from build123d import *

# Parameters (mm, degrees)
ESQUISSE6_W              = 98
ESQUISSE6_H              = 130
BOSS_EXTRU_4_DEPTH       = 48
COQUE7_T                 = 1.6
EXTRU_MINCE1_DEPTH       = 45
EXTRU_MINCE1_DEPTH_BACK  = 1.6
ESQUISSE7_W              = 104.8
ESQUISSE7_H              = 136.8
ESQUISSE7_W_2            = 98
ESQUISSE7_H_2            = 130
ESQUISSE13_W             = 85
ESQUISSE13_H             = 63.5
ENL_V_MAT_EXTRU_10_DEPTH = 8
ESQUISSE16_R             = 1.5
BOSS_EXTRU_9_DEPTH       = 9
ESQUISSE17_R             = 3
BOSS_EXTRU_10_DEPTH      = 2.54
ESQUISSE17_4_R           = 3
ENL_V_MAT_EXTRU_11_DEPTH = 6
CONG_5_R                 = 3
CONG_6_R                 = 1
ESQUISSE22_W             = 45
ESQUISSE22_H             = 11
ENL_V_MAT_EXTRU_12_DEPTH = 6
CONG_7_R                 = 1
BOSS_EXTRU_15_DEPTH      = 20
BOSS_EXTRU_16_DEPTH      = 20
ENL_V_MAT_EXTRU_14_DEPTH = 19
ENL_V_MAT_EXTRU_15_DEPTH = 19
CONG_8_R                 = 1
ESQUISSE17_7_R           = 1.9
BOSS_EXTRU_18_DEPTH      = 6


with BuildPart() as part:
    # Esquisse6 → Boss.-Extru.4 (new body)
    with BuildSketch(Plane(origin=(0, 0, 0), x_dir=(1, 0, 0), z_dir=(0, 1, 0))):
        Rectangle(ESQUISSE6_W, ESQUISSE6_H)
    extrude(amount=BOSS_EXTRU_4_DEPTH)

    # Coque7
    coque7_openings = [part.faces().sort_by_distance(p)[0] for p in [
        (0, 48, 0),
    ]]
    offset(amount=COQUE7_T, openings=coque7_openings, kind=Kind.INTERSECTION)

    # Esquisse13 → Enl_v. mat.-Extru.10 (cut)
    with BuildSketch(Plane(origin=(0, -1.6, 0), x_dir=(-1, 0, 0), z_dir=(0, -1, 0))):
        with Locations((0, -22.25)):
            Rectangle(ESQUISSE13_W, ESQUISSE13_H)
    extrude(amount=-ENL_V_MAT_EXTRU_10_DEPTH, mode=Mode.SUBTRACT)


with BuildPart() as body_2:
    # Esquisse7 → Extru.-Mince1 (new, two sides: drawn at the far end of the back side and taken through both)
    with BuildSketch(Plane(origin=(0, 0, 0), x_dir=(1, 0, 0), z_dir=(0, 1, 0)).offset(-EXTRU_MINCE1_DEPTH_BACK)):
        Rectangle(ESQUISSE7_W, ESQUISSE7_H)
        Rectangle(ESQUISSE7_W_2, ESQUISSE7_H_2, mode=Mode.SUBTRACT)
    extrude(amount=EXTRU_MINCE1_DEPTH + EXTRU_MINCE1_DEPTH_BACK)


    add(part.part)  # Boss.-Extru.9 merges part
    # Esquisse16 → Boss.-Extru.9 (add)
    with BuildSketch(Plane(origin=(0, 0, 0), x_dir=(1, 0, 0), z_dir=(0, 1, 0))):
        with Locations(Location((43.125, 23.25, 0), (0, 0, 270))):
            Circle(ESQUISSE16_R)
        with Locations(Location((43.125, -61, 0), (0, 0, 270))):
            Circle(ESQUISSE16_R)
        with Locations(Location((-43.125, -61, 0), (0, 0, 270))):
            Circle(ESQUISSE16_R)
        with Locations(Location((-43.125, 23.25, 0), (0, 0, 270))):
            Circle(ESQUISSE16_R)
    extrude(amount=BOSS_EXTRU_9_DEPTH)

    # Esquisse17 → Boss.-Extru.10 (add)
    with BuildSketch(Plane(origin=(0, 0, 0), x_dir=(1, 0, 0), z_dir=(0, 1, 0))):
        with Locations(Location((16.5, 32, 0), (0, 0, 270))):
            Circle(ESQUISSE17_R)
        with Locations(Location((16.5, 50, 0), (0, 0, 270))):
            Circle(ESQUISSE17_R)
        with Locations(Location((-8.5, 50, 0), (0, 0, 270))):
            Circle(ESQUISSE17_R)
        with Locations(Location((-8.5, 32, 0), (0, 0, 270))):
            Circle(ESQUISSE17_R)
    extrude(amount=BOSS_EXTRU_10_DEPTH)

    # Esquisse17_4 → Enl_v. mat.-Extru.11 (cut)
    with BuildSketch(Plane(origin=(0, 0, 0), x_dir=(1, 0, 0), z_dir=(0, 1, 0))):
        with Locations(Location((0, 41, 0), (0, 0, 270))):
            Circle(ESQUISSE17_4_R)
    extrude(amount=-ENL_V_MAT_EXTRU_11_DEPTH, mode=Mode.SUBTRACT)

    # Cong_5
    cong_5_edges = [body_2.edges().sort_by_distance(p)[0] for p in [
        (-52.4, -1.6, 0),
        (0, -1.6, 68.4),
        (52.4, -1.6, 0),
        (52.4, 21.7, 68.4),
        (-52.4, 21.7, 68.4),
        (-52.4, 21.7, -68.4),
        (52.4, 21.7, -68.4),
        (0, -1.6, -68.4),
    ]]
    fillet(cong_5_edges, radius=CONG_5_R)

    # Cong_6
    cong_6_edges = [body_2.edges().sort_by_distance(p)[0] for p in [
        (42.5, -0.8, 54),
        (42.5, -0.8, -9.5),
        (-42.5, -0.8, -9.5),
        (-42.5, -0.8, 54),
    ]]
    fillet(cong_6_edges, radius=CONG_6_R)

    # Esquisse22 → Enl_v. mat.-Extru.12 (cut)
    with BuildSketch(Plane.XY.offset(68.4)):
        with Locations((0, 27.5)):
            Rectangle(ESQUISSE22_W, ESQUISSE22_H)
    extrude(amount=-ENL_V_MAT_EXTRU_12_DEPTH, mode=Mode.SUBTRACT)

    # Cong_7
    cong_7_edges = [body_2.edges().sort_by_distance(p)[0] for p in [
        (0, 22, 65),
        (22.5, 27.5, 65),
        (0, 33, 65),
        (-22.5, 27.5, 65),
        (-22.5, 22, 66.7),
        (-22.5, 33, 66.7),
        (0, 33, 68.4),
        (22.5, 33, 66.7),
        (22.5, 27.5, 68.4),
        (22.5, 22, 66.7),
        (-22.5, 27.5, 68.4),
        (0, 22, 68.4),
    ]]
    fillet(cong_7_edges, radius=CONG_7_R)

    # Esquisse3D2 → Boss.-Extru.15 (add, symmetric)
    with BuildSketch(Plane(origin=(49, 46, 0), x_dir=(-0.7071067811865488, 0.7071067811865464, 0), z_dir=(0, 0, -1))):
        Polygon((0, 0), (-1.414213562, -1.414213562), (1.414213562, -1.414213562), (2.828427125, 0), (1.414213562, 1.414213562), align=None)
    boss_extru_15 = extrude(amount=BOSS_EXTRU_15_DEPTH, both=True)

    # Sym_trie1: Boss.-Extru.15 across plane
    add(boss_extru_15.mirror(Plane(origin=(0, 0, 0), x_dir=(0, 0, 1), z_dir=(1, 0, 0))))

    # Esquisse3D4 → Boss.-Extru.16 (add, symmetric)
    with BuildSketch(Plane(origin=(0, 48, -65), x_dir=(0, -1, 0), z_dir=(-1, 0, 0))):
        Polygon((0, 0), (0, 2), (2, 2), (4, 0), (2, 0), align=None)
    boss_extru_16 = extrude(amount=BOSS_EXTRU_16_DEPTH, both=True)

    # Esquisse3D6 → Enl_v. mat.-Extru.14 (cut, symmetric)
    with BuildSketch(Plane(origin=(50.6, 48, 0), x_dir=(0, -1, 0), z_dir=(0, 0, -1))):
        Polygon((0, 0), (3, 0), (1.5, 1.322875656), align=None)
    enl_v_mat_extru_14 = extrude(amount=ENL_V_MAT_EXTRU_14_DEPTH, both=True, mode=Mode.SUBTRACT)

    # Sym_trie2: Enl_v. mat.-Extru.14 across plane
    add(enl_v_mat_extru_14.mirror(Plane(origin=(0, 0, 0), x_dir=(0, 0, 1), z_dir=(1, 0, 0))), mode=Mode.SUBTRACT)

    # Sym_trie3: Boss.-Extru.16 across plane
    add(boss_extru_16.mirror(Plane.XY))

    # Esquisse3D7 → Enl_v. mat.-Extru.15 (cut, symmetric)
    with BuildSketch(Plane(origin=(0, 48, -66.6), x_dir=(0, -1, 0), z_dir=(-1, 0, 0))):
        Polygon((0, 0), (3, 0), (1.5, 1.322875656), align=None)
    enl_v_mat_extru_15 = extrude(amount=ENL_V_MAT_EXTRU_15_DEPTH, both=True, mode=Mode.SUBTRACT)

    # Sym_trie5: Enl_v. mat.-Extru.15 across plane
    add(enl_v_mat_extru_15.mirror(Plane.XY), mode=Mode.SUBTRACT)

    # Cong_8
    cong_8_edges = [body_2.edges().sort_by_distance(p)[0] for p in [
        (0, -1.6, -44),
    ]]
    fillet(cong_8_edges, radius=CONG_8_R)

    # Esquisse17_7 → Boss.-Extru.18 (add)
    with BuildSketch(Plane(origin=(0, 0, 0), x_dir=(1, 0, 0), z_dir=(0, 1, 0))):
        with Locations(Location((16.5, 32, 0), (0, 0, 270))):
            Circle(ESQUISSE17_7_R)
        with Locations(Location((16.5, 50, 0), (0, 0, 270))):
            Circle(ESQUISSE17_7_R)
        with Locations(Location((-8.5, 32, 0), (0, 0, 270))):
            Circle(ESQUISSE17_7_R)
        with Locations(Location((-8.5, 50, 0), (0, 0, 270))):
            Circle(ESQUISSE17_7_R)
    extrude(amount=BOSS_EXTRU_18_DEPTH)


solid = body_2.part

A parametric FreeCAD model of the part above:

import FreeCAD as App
import Part
import Sketcher
Q = App.Units.Quantity


def edges_at(feature, points):
    """Names of the edges that pass closest to the given points."""
    edges = feature.Shape.Edges
    near = lambda p: min(range(len(edges)), key=lambda i: edges[i].distToShape(Part.Vertex(*p))[0])
    return sorted({f"Edge{near(p) + 1}" for p in points})


def faces_at(feature, points):
    """Names of the faces that lie closest to the given points."""
    faces = feature.Shape.Faces
    near = lambda p: min(range(len(faces)), key=lambda i: faces[i].distToShape(Part.Vertex(*p))[0])
    return sorted({f"Face{near(p) + 1}" for p in points})


def add_polygon(sketch, points):
    """Adds a closed chain of lines whose ends are joined by coincident constraints."""
    first, n = sketch.GeometryCount, len(points)
    for a, b in zip(points, points[1:] + points[:1]):
        sketch.addGeometry(Part.LineSegment(App.Vector(*a, 0), App.Vector(*b, 0)), False)
    for i in range(n):
        sketch.addConstraint(Sketcher.Constraint("Coincident", first + i, 2, first + (i + 1) % n, 1))

doc = App.newDocument("Part")
body = doc.addObject("PartDesign::Body", "Body")

# Sketch on XZ plane
sketch1 = body.newObject("Sketcher::SketchObject", "Sketch")
sketch1.AttachmentSupport = (doc.getObject("XZ_Plane"), [""])
sketch1.MapMode = "FlatFace"
add_polygon(sketch1, [(-49, -65), (-49, 65), (49, 65), (49, -65)])  # lines 0-3
sketch1.addConstraint([
    Sketcher.Constraint("Vertical", 0),
    Sketcher.Constraint("Horizontal", 1),
    Sketcher.Constraint("Vertical", 2),
    Sketcher.Constraint("Horizontal", 3),
    Sketcher.Constraint("Symmetric", 0, 2, 2, 2, -1, 1),
    Sketcher.Constraint("DistanceX", 1, 1, 1, 2, Q("98 mm")),
    Sketcher.Constraint("DistanceY", 0, 1, 0, 2, Q("130 mm")),
])
pad1 = body.newObject("PartDesign::Pad", "Pad")
pad1.Profile = sketch1
pad1.Length = 48
pad1.Reversed = True
doc.recompute()

thickness = body.newObject("PartDesign::Thickness", "Thickness")
thickness.Base = (pad1, faces_at(pad1, [(0, 48, 0)]))
thickness.Value = 1.6
thickness.Reversed = False
thickness.Join = "Intersection"

# Sketch on XZ plane
sketch2 = body.newObject("Sketcher::SketchObject", "Sketch001")
sketch2.AttachmentSupport = (doc.getObject("XZ_Plane"), [""])
sketch2.MapMode = "FlatFace"
sketch2.AttachmentOffset = App.Placement(App.Vector(0, 0, 1.6), App.Rotation())
add_polygon(sketch2, [(42, -10), (42, 54), (-42, 54), (-42, -10)])  # lines 0-3
sketch2.addConstraint([
    Sketcher.Constraint("Vertical", 0),
    Sketcher.Constraint("Horizontal", 1),
    Sketcher.Constraint("Vertical", 2),
    Sketcher.Constraint("Horizontal", 3),
    Sketcher.Constraint("DistanceX", 1, 2, 1, 1, Q("85 mm")),
    Sketcher.Constraint("DistanceY", 0, 1, 0, 2, Q("63.5 mm")),
    Sketcher.Constraint("DistanceY", -1, 1, 0, 2, Q("54 mm")),
    Sketcher.Constraint("DistanceX", -1, 1, 0, 2, Q("42.5 mm")),
])
pocket1 = body.newObject("PartDesign::Pocket", "Pocket")
pocket1.Profile = sketch2
pocket1.Length = 8
body2 = doc.addObject("PartDesign::Body", "Body001")

# Sketch on XZ plane
sketch3 = body2.newObject("Sketcher::SketchObject", "Sketch002")
sketch3.AttachmentSupport = (doc.getObject("XZ_Plane001"), [""])
sketch3.MapMode = "FlatFace"
add_polygon(sketch3, [(-52, -68), (-52, 68), (52, 68), (52, -68)])  # lines 0-3
add_polygon(sketch3, [(49, 65), (-49, 65), (-49, -65), (49, -65)])  # lines 4-7
sketch3.addConstraint([
    Sketcher.Constraint("Vertical", 0),
    Sketcher.Constraint("Horizontal", 1),
    Sketcher.Constraint("Vertical", 2),
    Sketcher.Constraint("Horizontal", 3),
    Sketcher.Constraint("Horizontal", 4),
    Sketcher.Constraint("Vertical", 5),
    Sketcher.Constraint("Horizontal", 6),
    Sketcher.Constraint("Vertical", 7),
    Sketcher.Constraint("Symmetric", 0, 2, 2, 2, -1, 1),
    Sketcher.Constraint("Symmetric", 4, 2, 6, 2, -1, 1),
    Sketcher.Constraint("DistanceX", 4, 2, 4, 1, Q("98 mm")),
    Sketcher.Constraint("DistanceY", 5, 2, 5, 1, Q("130 mm")),
    Sketcher.Constraint("DistanceX", 1, 1, 1, 2, Q("104.8 mm")),
    Sketcher.Constraint("DistanceY", 0, 1, 0, 2, Q("136.8 mm")),
])
pad2 = body2.newObject("PartDesign::Pad", "Pad001")
pad2.Profile = sketch3
pad2.Type = "TwoLengths"
pad2.Length = 45
pad2.Length2 = 1.6
pad2.Reversed = True
doc.recompute()

boolean = body2.newObject("PartDesign::Boolean", "Boolean")
boolean.Type = "Fuse"
boolean.addObjects([body])

# Sketch on XZ plane
sketch4 = body2.newObject("Sketcher::SketchObject", "Sketch003")
sketch4.AttachmentSupport = (doc.getObject("XZ_Plane001"), [""])
sketch4.MapMode = "FlatFace"
sketch4.addGeometry([
    Part.Circle(App.Vector(43.1, -23.2, 0), App.Vector(0, 0, 1), 1.5),
    Part.Circle(App.Vector(43.1, 61, 0), App.Vector(0, 0, 1), 1.5),
    Part.Circle(App.Vector(-43.1, 61, 0), App.Vector(0, 0, 1), 1.5),
    Part.Circle(App.Vector(-43.1, -23.2, 0), App.Vector(0, 0, 1), 1.5),
], False)
sketch4.addConstraint([
    Sketcher.Constraint("Equal", 0, 1),
    Sketcher.Constraint("Equal", 1, 2),
    Sketcher.Constraint("Equal", 2, 3),
    Sketcher.Constraint("Symmetric", 1, 3, 2, 3, -2),
    Sketcher.Constraint("Symmetric", 0, 3, 3, 3, -2),
    Sketcher.Constraint("Vertical", 0, 3, 1, 3),
    Sketcher.Constraint("Diameter", 0, Q("3 mm")),
    Sketcher.Constraint("DistanceY", -1, 1, 1, 3, Q("61 mm")),
    Sketcher.Constraint("DistanceY", 0, 3, -1, 1, Q("23.25 mm")),
    Sketcher.Constraint("DistanceX", 2, 3, 1, 3, Q("86.25 mm")),
])
pad3 = body2.newObject("PartDesign::Pad", "Pad002")
pad3.Profile = sketch4
pad3.Length = 9
pad3.Reversed = True

# Sketch on XZ plane
sketch5 = body2.newObject("Sketcher::SketchObject", "Sketch004")
sketch5.AttachmentSupport = (doc.getObject("XZ_Plane001"), [""])
sketch5.MapMode = "FlatFace"
sketch5.addGeometry([
    Part.Circle(App.Vector(16.5, -32, 0), App.Vector(0, 0, 1), 3),
    Part.Circle(App.Vector(16.5, -50, 0), App.Vector(0, 0, 1), 3),
    Part.Circle(App.Vector(-8.5, -50, 0), App.Vector(0, 0, 1), 3),
    Part.Circle(App.Vector(-8.5, -32, 0), App.Vector(0, 0, 1), 3),
], False)
sketch5.addConstraint([
    Sketcher.Constraint("Equal", 0, 1),
    Sketcher.Constraint("Equal", 1, 2),
    Sketcher.Constraint("Equal", 2, 3),
    Sketcher.Constraint("Horizontal", 1, 3, 2, 3),
    Sketcher.Constraint("Horizontal", 0, 3, 3, 3),
    Sketcher.Constraint("Vertical", 0, 3, 1, 3),
    Sketcher.Constraint("Vertical", 2, 3, 3, 3),
    Sketcher.Constraint("Diameter", 0, Q("6 mm")),
    Sketcher.Constraint("DistanceY", 0, 3, -1, 1, Q("32 mm")),
    Sketcher.Constraint("DistanceY", 1, 3, -1, 1, Q("50 mm")),
    Sketcher.Constraint("DistanceX", 2, 3, 1, 3, Q("25 mm")),
    Sketcher.Constraint("DistanceX", -1, 1, 0, 3, Q("16.5 mm")),
])
pad4 = body2.newObject("PartDesign::Pad", "Pad003")
pad4.Profile = sketch5
pad4.Length = 2.54
pad4.Reversed = True

# Sketch on XZ plane
sketch6 = body2.newObject("Sketcher::SketchObject", "Sketch005")
sketch6.AttachmentSupport = (doc.getObject("XZ_Plane001"), [""])
sketch6.MapMode = "FlatFace"
sketch6.addGeometry(Part.Circle(App.Vector(0, -41, 0), App.Vector(0, 0, 1), 3), False)
sketch6.addConstraint([
    Sketcher.Constraint("PointOnObject", 0, 3, -2),
    Sketcher.Constraint("Diameter", 0, Q("6 mm")),
    Sketcher.Constraint("DistanceY", 0, 3, -1, 1, Q("41 mm")),
])
pocket2 = body2.newObject("PartDesign::Pocket", "Pocket001")
pocket2.Profile = sketch6
pocket2.Length = 6
pocket2.Reversed = True
doc.recompute()

fillet = body2.newObject("PartDesign::Fillet", "Fillet")
fillet.Base = (pocket2, edges_at(pocket2, [
    (-52.4, -1.6, 0),
    (0, -1.6, 68.4),
    (52.4, -1.6, 0),
    (52.4, 21.7, 68.4),
    (-52.4, 21.7, 68.4),
    (-52.4, 21.7, -68.4),
    (52.4, 21.7, -68.4),
    (0, -1.6, -68.4),
]))
fillet.Radius = 3
doc.recompute()

fillet2 = body2.newObject("PartDesign::Fillet", "Fillet001")
fillet2.Base = (fillet, edges_at(fillet, [
    (42.5, -0.8, 54),
    (42.5, -0.8, -9.5),
    (-42.5, -0.8, -9.5),
    (-42.5, -0.8, 54),
]))
fillet2.Radius = 1

# Sketch on XY plane
sketch7 = body2.newObject("Sketcher::SketchObject", "Sketch006")
sketch7.AttachmentSupport = (doc.getObject("XY_Plane001"), [""])
sketch7.MapMode = "FlatFace"
sketch7.AttachmentOffset = App.Placement(App.Vector(0, 0, 68.4), App.Rotation())
add_polygon(sketch7, [(-22, 33), (-22, 22), (22, 22), (22, 33)])  # lines 0-3
sketch7.addConstraint([
    Sketcher.Constraint("Vertical", 0),
    Sketcher.Constraint("Horizontal", 1),
    Sketcher.Constraint("Vertical", 2),
    Sketcher.Constraint("Horizontal", 3),
    Sketcher.Constraint("DistanceX", 1, 1, 1, 2, Q("45 mm")),
    Sketcher.Constraint("DistanceY", 0, 2, 0, 1, Q("11 mm")),
    Sketcher.Constraint("DistanceY", -1, 1, 0, 2, Q("22 mm")),
    Sketcher.Constraint("DistanceX", 0, 2, -1, 1, Q("22.5 mm")),
])
pocket3 = body2.newObject("PartDesign::Pocket", "Pocket002")
pocket3.Profile = sketch7
pocket3.Length = 6
doc.recompute()

fillet3 = body2.newObject("PartDesign::Fillet", "Fillet002")
fillet3.Base = (pocket3, edges_at(pocket3, [
    (0, 22, 65),
    (22.5, 27.5, 65),
    (0, 33, 65),
    (-22.5, 27.5, 65),
    (-22.5, 22, 66.7),
    (-22.5, 33, 66.7),
    (0, 33, 68.4),
    (22.5, 33, 66.7),
    (22.5, 27.5, 68.4),
    (22.5, 22, 66.7),
    (-22.5, 27.5, 68.4),
    (0, 22, 68.4),
]))
fillet3.Radius = 1

# Sketch on XY plane
sketch8 = body2.newObject("Sketcher::SketchObject", "Sketch007")
sketch8.AttachmentSupport = (doc.getObject("XY_Plane001"), [""])
sketch8.MapMode = "FlatFace"
add_polygon(sketch8, [(49, 44), (47, 46), (47, 48), (49, 48)])  # lines 0-3
sketch8.addConstraint([
    Sketcher.Constraint("Vertical", 1),
    Sketcher.Constraint("Horizontal", 2),
    Sketcher.Constraint("Vertical", 3),
    Sketcher.Constraint("Equal", 2, 1),
    Sketcher.Constraint("DistanceX", 2, 1, 2, 2, Q("2 mm")),
    Sketcher.Constraint("DistanceY", 3, 2, 3, 1, Q("4 mm")),
    Sketcher.Constraint("DistanceX", -1, 1, 0, 2, Q("47 mm")),
    Sketcher.Constraint("DistanceY", -1, 1, 0, 2, Q("46 mm")),
])
pad5 = body2.newObject("PartDesign::Pad", "Pad004")
pad5.Profile = sketch8
pad5.Length = 40
pad5.Midplane = True
doc.recompute()

mirrored = body2.newObject("PartDesign::Mirrored", "Mirrored")
mirrored.Originals = [pad5]
mirrored.MirrorPlane = (doc.getObject("YZ_Plane001"), [""])
body2.Tip = mirrored

# Sketch on YZ plane
sketch9 = body2.newObject("Sketcher::SketchObject", "Sketch008")
sketch9.AttachmentSupport = (doc.getObject("YZ_Plane001"), [""])
sketch9.MapMode = "FlatFace"
add_polygon(sketch9, [(48, -63), (48, -65), (44, -65), (46, -63)])  # lines 0-3
sketch9.addConstraint([
    Sketcher.Constraint("Vertical", 0),
    Sketcher.Constraint("Horizontal", 1),
    Sketcher.Constraint("Horizontal", 3),
    Sketcher.Constraint("Equal", 3, 0),
    Sketcher.Constraint("DistanceX", 1, 2, 1, 1, Q("4 mm")),
    Sketcher.Constraint("DistanceX", 3, 1, 3, 2, Q("2 mm")),
    Sketcher.Constraint("DistanceX", -1, 1, 0, 2, Q("48 mm")),
    Sketcher.Constraint("DistanceY", 0, 2, -1, 1, Q("65 mm")),
])
pad6 = body2.newObject("PartDesign::Pad", "Pad005")
pad6.Profile = sketch9
pad6.Length = 40
pad6.Midplane = True

# Sketch on XY plane
sketch10 = body2.newObject("Sketcher::SketchObject", "Sketch009")
sketch10.AttachmentSupport = (doc.getObject("XY_Plane001"), [""])
sketch10.MapMode = "FlatFace"
add_polygon(sketch10, [(50.6, 48), (50.6, 45), (49.3, 46.5)])  # lines 0-2
sketch10.addConstraint([
    Sketcher.Constraint("Vertical", 0),
    Sketcher.Constraint("Equal", 1, 2),
    Sketcher.Constraint("DistanceY", 0, 2, 0, 1, Q("3 mm")),
    Sketcher.Constraint("Distance", 1, Q("2 mm")),
    Sketcher.Constraint("DistanceY", -1, 1, 0, 2, Q("45 mm")),
    Sketcher.Constraint("DistanceX", -1, 1, 0, 2, Q("50.6 mm")),
])
pocket4 = body2.newObject("PartDesign::Pocket", "Pocket003")
pocket4.Profile = sketch10
pocket4.Length = 38
pocket4.Midplane = True
doc.recompute()

mirrored2 = body2.newObject("PartDesign::Mirrored", "Mirrored001")
mirrored2.Originals = [pocket4]
mirrored2.MirrorPlane = (doc.getObject("YZ_Plane001"), [""])
body2.Tip = mirrored2
doc.recompute()

mirrored3 = body2.newObject("PartDesign::Mirrored", "Mirrored002")
mirrored3.Originals = [pad6]
mirrored3.MirrorPlane = (doc.getObject("XY_Plane001"), [""])
body2.Tip = mirrored3

# Sketch on YZ plane
sketch11 = body2.newObject("Sketcher::SketchObject", "Sketch010")
sketch11.AttachmentSupport = (doc.getObject("YZ_Plane001"), [""])
sketch11.MapMode = "FlatFace"
add_polygon(sketch11, [(48, -66.6), (45, -66.6), (46.5, -65.3)])  # lines 0-2
sketch11.addConstraint([
    Sketcher.Constraint("Horizontal", 0),
    Sketcher.Constraint("Equal", 1, 2),
    Sketcher.Constraint("DistanceX", 0, 2, 0, 1, Q("3 mm")),
    Sketcher.Constraint("Distance", 1, Q("2 mm")),
    Sketcher.Constraint("DistanceX", -1, 1, 0, 2, Q("45 mm")),
    Sketcher.Constraint("DistanceY", 0, 2, -1, 1, Q("66.6 mm")),
])
pocket5 = body2.newObject("PartDesign::Pocket", "Pocket004")
pocket5.Profile = sketch11
pocket5.Length = 38
pocket5.Midplane = True
doc.recompute()

mirrored4 = body2.newObject("PartDesign::Mirrored", "Mirrored003")
mirrored4.Originals = [pocket5]
mirrored4.MirrorPlane = (doc.getObject("XY_Plane001"), [""])
body2.Tip = mirrored4
doc.recompute()

fillet4 = body2.newObject("PartDesign::Fillet", "Fillet003")
fillet4.Base = (mirrored4, edges_at(mirrored4, [(0, -1.6, -44)]))
fillet4.Radius = 1

# Sketch on XZ plane
sketch12 = body2.newObject("Sketcher::SketchObject", "Sketch011")
sketch12.AttachmentSupport = (doc.getObject("XZ_Plane001"), [""])
sketch12.MapMode = "FlatFace"
sketch12.addGeometry([
    Part.Circle(App.Vector(16.5, -32, 0), App.Vector(0, 0, 1), 1.9),
    Part.Circle(App.Vector(16.5, -50, 0), App.Vector(0, 0, 1), 1.9),
    Part.Circle(App.Vector(-8.5, -32, 0), App.Vector(0, 0, 1), 1.9),
    Part.Circle(App.Vector(-8.5, -50, 0), App.Vector(0, 0, 1), 1.9),
], False)
sketch12.addConstraint([
    Sketcher.Constraint("Equal", 0, 1),
    Sketcher.Constraint("Equal", 1, 2),
    Sketcher.Constraint("Equal", 2, 3),
    Sketcher.Constraint("Horizontal", 0, 3, 2, 3),
    Sketcher.Constraint("Horizontal", 1, 3, 3, 3),
    Sketcher.Constraint("Vertical", 0, 3, 1, 3),
    Sketcher.Constraint("Vertical", 2, 3, 3, 3),
    Sketcher.Constraint("Diameter", 0, Q("3.8 mm")),
    Sketcher.Constraint("DistanceY", 0, 3, -1, 1, Q("32 mm")),
    Sketcher.Constraint("DistanceY", 1, 3, -1, 1, Q("50 mm")),
    Sketcher.Constraint("DistanceX", 2, 3, 0, 3, Q("25 mm")),
    Sketcher.Constraint("DistanceX", -1, 1, 0, 3, Q("16.5 mm")),
])
pad7 = body2.newObject("PartDesign::Pad", "Pad006")
pad7.Profile = sketch12
pad7.Length = 6
pad7.Reversed = True

doc.recompute()
